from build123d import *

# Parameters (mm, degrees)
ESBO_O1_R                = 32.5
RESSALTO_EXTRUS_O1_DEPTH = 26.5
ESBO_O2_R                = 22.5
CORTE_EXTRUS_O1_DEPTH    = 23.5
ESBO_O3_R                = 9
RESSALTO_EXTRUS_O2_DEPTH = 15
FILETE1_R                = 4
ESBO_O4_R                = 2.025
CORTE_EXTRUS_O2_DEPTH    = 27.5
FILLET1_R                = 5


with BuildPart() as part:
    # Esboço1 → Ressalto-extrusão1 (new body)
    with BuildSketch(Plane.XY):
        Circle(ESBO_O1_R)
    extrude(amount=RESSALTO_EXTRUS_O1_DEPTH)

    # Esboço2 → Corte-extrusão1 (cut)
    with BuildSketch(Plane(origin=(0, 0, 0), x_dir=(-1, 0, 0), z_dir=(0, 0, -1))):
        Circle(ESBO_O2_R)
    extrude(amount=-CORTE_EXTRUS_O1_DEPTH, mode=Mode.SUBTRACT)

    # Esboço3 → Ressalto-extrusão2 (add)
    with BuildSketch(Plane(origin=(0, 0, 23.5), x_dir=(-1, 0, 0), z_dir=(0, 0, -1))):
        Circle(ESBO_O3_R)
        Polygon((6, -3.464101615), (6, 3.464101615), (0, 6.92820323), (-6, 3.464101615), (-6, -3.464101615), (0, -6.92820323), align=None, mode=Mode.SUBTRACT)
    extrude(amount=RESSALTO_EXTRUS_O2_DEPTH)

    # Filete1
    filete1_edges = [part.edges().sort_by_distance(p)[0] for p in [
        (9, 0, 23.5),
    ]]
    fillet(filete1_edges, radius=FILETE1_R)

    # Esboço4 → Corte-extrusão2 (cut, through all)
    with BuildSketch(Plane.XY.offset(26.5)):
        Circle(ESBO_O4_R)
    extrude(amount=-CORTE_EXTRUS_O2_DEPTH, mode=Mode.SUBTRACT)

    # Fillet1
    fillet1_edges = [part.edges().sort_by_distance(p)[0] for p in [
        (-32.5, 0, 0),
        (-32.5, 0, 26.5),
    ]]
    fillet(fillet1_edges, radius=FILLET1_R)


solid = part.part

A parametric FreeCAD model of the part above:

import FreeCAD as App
import Part
import Sketcher

V = App.Vector
Q = App.Units.Quantity


def edges_at(feature, points):
    """Names of the edges that pass closest to the given points."""
    edges = feature.Shape.Edges
    near = lambda p: min(range(len(edges)), key=lambda i: edges[i].distToShape(Part.Vertex(*p))[0])
    return sorted({f"Edge{near(p) + 1}" for p in points})

doc = App.newDocument("Part")
body = doc.addObject("PartDesign::Body", "Body")

# Sketch on XY plane
sketch1 = doc.addObject("Sketcher::SketchObject", "Sketch")
body.addObject(sketch1)
sketch1.AttachmentSupport = (doc.XY_Plane, [""])
sketch1.MapMode = "FlatFace"
sketch1.addGeometry(Part.Circle(V(0, 0, 0), V(0, 0, 1), 32), False)
sketch1.addConstraint(Sketcher.Constraint("Coincident", 0, 3, -1, 1))
sketch1.addConstraint(Sketcher.Constraint("Diameter", 0, Q("65 mm")))
pad1 = doc.addObject("PartDesign::Pad", "Pad")
body.addObject(pad1)
pad1.Profile = sketch1
pad1.Length = 26.5

# Sketch on XY plane
sketch2 = doc.addObject("Sketcher::SketchObject", "Sketch001")
body.addObject(sketch2)
sketch2.AttachmentSupport = (doc.XY_Plane, [""])
sketch2.MapMode = "FlatFace"
sketch2.addGeometry(Part.Circle(V(0, 0, 0), V(0, 0, 1), 22), False)
sketch2.addConstraint(Sketcher.Constraint("Coincident", 0, 3, -1, 1))
sketch2.addConstraint(Sketcher.Constraint("Diameter", 0, Q("45 mm")))
pocket1 = doc.addObject("PartDesign::Pocket", "Pocket")
body.addObject(pocket1)
pocket1.Profile = sketch2
pocket1.Length = 23.5
pocket1.Reversed = True

# Sketch on XY plane
sketch3 = doc.addObject("Sketcher::SketchObject", "Sketch002")
body.addObject(sketch3)
sketch3.AttachmentSupport = (doc.XY_Plane, [""])
sketch3.MapMode = "FlatFace"
sketch3.AttachmentOffset = App.Placement(V(0, 0, 23.5), App.Rotation())
sketch3.addGeometry(Part.Circle(V(0, 0, 0), V(0, 0, 1), 9), False)
sketch3.addGeometry(Part.LineSegment(V(-6, 3, 0), V(-6, -3, 0)), False)
sketch3.addGeometry(Part.LineSegment(V(-6, -3, 0), V(0, -7, 0)), False)
sketch3.addGeometry(Part.LineSegment(V(0, -7, 0), V(6, -3, 0)), False)
sketch3.addGeometry(Part.LineSegment(V(6, -3, 0), V(6, 3, 0)), False)
sketch3.addGeometry(Part.LineSegment(V(6, 3, 0), V(0, 7, 0)), False)
sketch3.addGeometry(Part.LineSegment(V(0, 7, 0), V(-6, 3, 0)), False)
sketch3.addConstraint(Sketcher.Constraint("Coincident", 1, 2, 2, 1))
sketch3.addConstraint(Sketcher.Constraint("Coincident", 2, 2, 3, 1))
sketch3.addConstraint(Sketcher.Constraint("Coincident", 3, 2, 4, 1))
sketch3.addConstraint(Sketcher.Constraint("Coincident", 4, 2, 5, 1))
sketch3.addConstraint(Sketcher.Constraint("Coincident", 5, 2, 6, 1))
sketch3.addConstraint(Sketcher.Constraint("Coincident", 6, 2, 1, 1))
sketch3.addConstraint(Sketcher.Constraint("Vertical", 1))
sketch3.addConstraint(Sketcher.Constraint("Vertical", 4))
sketch3.addConstraint(Sketcher.Constraint("Coincident", 0, 3, -1, 1))
sketch3.addConstraint(Sketcher.Constraint("Symmetric", 1, 2, 4, 2, -1, 1))
sketch3.addConstraint(Sketcher.Constraint("Symmetric", 2, 2, 5, 2, -1, 1))
sketch3.addConstraint(Sketcher.Constraint("PointOnObject", 2, 2, -2))
sketch3.addConstraint(Sketcher.Constraint("Parallel", 3, 6))
sketch3.addConstraint(Sketcher.Constraint("Horizontal", 1, 2, 3, 2))
sketch3.addConstraint(Sketcher.Constraint("Diameter", 0, Q("18 mm")))
sketch3.addConstraint(Sketcher.Constraint("Angle", 2, Q("-30 deg")))
sketch3.addConstraint(Sketcher.Constraint("DistanceX", 1, 2, -1, 1, Q("6 mm")))
sketch3.addConstraint(Sketcher.Constraint("DistanceY", 1, 2, -1, 1, Q("3.464102 mm")))
pad2 = doc.addObject("PartDesign::Pad", "Pad001")
body.addObject(pad2)
pad2.Profile = sketch3
pad2.Length = 15
pad2.Reversed = True
doc.recompute()

fillet = doc.addObject("PartDesign::Fillet", "Fillet")
body.addObject(fillet)
fillet.Base = (pad2, edges_at(pad2, [(9, 0, 23.5)]))
fillet.Radius = 4

# Sketch on XY plane
sketch4 = doc.addObject("Sketcher::SketchObject", "Sketch003")
body.addObject(sketch4)
sketch4.AttachmentSupport = (doc.XY_Plane, [""])
sketch4.MapMode = "FlatFace"
sketch4.AttachmentOffset = App.Placement(V(0, 0, 26.5), App.Rotation())
sketch4.addGeometry(Part.Circle(V(0, 0, 0), V(0, 0, 1), 2), False)
sketch4.addConstraint(Sketcher.Constraint("Coincident", 0, 3, -1, 1))
sketch4.addConstraint(Sketcher.Constraint("Diameter", 0, Q("4.05 mm")))
pocket2 = doc.addObject("PartDesign::Pocket", "Pocket001")
body.addObject(pocket2)
pocket2.Profile = sketch4
pocket2.Type = "ThroughAll"
doc.recompute()

fillet2 = doc.addObject("PartDesign::Fillet", "Fillet001")
body.addObject(fillet2)
fillet2.Base = (pocket2, edges_at(pocket2, [(-32.5, 0, 0), (-32.5, 0, 26.5)]))
fillet2.Radius = 5

doc.recompute()
